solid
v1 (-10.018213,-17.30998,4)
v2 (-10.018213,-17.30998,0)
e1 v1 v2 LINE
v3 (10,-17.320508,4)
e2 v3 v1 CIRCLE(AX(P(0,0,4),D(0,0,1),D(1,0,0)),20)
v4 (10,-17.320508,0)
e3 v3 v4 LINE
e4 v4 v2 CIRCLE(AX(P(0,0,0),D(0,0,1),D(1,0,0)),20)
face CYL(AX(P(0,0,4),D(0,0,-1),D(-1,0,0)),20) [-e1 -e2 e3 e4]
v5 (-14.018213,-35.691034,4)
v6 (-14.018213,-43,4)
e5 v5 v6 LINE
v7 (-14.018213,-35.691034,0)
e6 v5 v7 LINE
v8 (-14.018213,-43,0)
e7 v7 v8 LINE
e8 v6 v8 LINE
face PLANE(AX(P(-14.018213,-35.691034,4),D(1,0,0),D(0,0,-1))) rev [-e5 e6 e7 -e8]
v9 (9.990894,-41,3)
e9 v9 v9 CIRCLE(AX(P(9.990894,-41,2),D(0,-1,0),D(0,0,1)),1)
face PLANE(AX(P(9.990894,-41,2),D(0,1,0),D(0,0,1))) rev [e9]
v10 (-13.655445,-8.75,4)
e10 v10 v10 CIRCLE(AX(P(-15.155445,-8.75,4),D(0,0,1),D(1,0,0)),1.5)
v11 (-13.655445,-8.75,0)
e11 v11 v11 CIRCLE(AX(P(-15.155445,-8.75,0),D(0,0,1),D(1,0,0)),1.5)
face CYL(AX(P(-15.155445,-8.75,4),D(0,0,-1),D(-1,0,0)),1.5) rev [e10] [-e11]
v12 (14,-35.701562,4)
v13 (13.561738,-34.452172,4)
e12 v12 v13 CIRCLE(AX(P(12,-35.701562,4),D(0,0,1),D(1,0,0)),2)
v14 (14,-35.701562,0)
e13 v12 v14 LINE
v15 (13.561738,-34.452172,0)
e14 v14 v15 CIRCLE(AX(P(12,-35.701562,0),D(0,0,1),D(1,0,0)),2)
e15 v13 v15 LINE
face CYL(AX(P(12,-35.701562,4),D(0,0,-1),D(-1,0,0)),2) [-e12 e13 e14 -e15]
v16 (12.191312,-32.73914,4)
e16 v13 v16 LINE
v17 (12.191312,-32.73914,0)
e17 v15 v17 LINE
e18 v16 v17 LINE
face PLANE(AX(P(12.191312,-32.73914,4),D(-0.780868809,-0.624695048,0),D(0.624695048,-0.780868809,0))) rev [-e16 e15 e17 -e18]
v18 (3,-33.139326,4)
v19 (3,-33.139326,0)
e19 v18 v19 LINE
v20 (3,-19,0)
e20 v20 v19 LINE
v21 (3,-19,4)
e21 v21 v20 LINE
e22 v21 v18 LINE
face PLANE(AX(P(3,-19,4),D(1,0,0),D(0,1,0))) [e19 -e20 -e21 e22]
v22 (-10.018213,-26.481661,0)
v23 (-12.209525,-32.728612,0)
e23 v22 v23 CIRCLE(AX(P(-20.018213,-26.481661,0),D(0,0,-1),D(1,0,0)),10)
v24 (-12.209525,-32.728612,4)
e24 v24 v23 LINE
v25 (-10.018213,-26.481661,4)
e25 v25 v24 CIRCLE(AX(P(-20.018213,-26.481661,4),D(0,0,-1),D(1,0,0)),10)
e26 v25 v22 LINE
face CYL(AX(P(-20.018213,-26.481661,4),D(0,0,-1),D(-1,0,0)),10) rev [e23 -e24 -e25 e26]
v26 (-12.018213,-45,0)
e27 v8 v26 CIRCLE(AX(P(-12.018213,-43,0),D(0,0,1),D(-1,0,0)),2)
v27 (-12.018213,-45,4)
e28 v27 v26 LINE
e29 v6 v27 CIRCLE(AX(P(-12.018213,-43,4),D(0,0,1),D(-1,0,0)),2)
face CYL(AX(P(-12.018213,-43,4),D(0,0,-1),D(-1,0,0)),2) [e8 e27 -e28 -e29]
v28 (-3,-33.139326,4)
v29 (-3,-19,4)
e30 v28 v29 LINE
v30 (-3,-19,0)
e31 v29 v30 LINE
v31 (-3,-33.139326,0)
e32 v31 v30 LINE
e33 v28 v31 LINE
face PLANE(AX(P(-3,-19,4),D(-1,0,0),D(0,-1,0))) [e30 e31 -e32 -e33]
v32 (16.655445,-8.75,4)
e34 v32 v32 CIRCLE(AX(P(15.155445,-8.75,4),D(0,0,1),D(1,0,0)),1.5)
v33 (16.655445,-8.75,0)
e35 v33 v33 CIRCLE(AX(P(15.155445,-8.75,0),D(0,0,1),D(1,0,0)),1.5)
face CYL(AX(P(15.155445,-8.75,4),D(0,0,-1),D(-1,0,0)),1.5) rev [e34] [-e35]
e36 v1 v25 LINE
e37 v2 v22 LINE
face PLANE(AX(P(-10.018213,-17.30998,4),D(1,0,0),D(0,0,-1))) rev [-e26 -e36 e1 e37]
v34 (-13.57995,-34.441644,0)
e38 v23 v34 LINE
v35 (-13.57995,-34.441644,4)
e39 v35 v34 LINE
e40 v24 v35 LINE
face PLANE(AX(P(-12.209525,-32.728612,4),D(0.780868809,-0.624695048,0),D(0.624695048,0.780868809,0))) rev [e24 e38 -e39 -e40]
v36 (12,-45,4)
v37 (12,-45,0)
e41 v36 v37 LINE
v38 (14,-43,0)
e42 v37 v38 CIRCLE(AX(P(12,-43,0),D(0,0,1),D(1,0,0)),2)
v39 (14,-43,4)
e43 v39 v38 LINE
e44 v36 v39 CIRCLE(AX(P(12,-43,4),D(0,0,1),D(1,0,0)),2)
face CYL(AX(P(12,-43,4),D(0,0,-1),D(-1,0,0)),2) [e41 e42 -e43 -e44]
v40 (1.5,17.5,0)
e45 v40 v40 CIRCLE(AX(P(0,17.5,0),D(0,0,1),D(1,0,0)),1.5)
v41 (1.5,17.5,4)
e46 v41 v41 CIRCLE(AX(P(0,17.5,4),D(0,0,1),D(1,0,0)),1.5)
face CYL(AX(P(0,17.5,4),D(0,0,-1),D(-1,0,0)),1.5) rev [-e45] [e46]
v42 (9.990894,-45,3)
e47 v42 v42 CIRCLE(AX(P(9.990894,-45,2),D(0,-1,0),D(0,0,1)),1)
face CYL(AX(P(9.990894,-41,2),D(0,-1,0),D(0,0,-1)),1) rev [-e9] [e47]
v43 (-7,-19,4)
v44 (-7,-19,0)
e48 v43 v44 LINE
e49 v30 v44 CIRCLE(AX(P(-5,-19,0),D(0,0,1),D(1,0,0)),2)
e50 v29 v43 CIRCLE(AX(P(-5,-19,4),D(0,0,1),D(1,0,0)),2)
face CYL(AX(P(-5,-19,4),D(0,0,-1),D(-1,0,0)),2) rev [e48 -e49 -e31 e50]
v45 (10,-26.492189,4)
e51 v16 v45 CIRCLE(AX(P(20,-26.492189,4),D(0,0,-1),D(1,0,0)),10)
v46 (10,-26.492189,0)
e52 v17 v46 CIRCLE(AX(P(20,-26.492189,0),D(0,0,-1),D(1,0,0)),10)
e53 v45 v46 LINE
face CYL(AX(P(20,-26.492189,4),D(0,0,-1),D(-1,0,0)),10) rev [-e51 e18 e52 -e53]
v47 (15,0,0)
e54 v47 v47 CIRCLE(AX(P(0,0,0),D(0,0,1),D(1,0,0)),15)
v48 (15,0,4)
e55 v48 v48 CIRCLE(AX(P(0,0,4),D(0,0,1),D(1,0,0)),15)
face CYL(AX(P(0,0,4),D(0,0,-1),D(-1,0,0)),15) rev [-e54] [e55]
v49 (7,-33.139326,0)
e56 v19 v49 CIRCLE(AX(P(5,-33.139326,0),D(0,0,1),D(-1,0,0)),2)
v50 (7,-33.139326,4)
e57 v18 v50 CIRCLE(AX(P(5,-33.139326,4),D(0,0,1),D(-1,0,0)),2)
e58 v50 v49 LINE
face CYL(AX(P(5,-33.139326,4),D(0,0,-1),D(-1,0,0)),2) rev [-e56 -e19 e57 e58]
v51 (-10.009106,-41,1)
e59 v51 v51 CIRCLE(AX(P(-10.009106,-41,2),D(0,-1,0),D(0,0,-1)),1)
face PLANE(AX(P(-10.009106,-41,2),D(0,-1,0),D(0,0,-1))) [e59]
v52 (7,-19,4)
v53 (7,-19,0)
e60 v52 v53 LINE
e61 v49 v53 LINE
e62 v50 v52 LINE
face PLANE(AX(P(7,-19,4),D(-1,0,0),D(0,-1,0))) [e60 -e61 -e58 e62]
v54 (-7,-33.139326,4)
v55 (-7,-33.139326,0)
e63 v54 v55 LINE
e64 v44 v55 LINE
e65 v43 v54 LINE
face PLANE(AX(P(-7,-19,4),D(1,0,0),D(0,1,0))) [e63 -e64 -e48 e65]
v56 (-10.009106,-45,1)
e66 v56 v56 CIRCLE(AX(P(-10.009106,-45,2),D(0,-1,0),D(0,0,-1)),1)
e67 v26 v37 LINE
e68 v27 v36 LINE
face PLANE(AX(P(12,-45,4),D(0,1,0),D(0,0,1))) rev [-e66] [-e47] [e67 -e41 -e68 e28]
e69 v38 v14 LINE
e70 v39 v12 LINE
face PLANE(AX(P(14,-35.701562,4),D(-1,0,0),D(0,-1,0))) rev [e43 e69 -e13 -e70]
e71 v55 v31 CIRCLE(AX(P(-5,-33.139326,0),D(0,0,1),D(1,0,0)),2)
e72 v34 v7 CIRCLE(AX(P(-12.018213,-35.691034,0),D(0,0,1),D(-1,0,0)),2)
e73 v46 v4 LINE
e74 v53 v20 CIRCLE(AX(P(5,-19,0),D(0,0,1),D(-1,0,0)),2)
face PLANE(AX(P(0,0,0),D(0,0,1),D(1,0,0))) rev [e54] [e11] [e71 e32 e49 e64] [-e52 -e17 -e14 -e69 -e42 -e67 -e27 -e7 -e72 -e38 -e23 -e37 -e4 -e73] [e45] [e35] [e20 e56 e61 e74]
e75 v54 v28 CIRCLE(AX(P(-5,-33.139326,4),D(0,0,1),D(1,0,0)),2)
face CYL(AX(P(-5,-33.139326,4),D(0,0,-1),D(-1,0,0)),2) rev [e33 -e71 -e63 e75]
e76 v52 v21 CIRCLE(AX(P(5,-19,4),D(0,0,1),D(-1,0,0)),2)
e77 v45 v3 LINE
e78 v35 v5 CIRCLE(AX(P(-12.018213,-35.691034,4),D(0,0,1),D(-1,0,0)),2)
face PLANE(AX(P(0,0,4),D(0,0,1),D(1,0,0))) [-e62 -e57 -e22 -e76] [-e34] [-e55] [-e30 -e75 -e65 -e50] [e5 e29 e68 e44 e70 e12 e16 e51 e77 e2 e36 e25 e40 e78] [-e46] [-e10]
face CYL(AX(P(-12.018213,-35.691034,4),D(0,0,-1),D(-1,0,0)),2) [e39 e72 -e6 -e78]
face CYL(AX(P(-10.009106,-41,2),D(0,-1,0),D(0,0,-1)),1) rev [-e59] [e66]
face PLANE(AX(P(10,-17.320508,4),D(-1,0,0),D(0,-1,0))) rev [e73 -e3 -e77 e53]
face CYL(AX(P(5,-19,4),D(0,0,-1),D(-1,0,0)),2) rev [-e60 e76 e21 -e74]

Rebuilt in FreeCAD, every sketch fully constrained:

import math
import FreeCAD as App
import Part
import Sketcher
Q = App.Units.Quantity

doc = App.newDocument("Part")
body = doc.addObject("PartDesign::Body", "Body")

# Sketch on XY plane
sketch1 = body.newObject("Sketcher::SketchObject", "Sketch")
sketch1.AttachmentSupport = (doc.getObject("XY_Plane"), [""])
sketch1.MapMode = "FlatFace"
sketch1.addGeometry(Part.LineSegment(App.Vector(13.6, -34.5, 0), App.Vector(12.2, -32.7, 0)), False)
sketch1.addGeometry(Part.ArcOfCircle(Part.Circle(App.Vector(20, -26.5, 0), App.Vector(0, 0, 1), 10), math.radians(180), math.radians(219)), False)
sketch1.addGeometry(Part.LineSegment(App.Vector(10, -26.5, 0), App.Vector(10, -17.3, 0)), False)
sketch1.addGeometry(Part.ArcOfCircle(Part.Circle(App.Vector(0, 0, 0), App.Vector(0, 0, 1), 20), math.radians(-60), math.radians(240)), False)
sketch1.addGeometry(Part.LineSegment(App.Vector(-10, -17.3, 0), App.Vector(-10, -26.5, 0)), False)
sketch1.addGeometry(Part.ArcOfCircle(Part.Circle(App.Vector(-20, -26.5, 0), App.Vector(0, 0, 1), 10), math.radians(-39), math.radians(0)), False)
sketch1.addGeometry(Part.LineSegment(App.Vector(-12.2, -32.7, 0), App.Vector(-13.6, -34.4, 0)), False)
sketch1.addGeometry(Part.ArcOfCircle(Part.Circle(App.Vector(-12, -35.7, 0), App.Vector(0, 0, 1), 2), math.radians(141), math.radians(180)), False)
sketch1.addGeometry(Part.LineSegment(App.Vector(-14, -35.7, 0), App.Vector(-14, -43, 0)), False)
sketch1.addGeometry(Part.ArcOfCircle(Part.Circle(App.Vector(-12, -43, 0), App.Vector(0, 0, 1), 2), math.radians(-180), math.radians(-90)), False)
sketch1.addGeometry(Part.LineSegment(App.Vector(-12, -45, 0), App.Vector(12, -45, 0)), False)
sketch1.addGeometry(Part.ArcOfCircle(Part.Circle(App.Vector(12, -43, 0), App.Vector(0, 0, 1), 2), math.radians(-90), math.radians(0)), False)
sketch1.addGeometry(Part.LineSegment(App.Vector(14, -43, 0), App.Vector(14, -35.7, 0)), False)
sketch1.addGeometry(Part.ArcOfCircle(Part.Circle(App.Vector(12, -35.7, 0), App.Vector(0, 0, 1), 2), math.radians(0), math.radians(39)), False)
sketch1.addGeometry(Part.ArcOfCircle(Part.Circle(App.Vector(5, -19, 0), App.Vector(0, 0, 1), 2), math.radians(0), math.radians(180)), False)
sketch1.addGeometry(Part.LineSegment(App.Vector(7, -19, 0), App.Vector(7, -33.1, 0)), False)
sketch1.addGeometry(Part.ArcOfCircle(Part.Circle(App.Vector(5, -33.1, 0), App.Vector(0, 0, 1), 2), math.radians(180), math.radians(360)), False)
sketch1.addGeometry(Part.LineSegment(App.Vector(3, -33.1, 0), App.Vector(3, -19, 0)), False)
sketch1.addGeometry(Part.Circle(App.Vector(15.2, -8.8, 0), App.Vector(0, 0, 1), 1.5), False)
sketch1.addGeometry(Part.LineSegment(App.Vector(-3, -19, 0), App.Vector(-3, -33.1, 0)), False)
sketch1.addGeometry(Part.ArcOfCircle(Part.Circle(App.Vector(-5, -33.1, 0), App.Vector(0, 0, 1), 2), math.radians(180), math.radians(360)), False)
sketch1.addGeometry(Part.LineSegment(App.Vector(-7, -33.1, 0), App.Vector(-7, -19, 0)), False)
sketch1.addGeometry(Part.ArcOfCircle(Part.Circle(App.Vector(-5, -19, 0), App.Vector(0, 0, 1), 2), math.radians(0), math.radians(180)), False)
sketch1.addGeometry(Part.Circle(App.Vector(-15.2, -8.8, 0), App.Vector(0, 0, 1), 1.5), False)
sketch1.addGeometry(Part.Circle(App.Vector(0, 0, 0), App.Vector(0, 0, 1), 15), False)
sketch1.addGeometry(Part.Circle(App.Vector(0, 17.5, 0), App.Vector(0, 0, 1), 1.5), False)
sketch1.addConstraint(Sketcher.Constraint("Tangent", 0, 2, 1, 2))
sketch1.addConstraint(Sketcher.Constraint("Tangent", 1, 1, 2, 1))
sketch1.addConstraint(Sketcher.Constraint("Coincident", 2, 2, 3, 1))
sketch1.addConstraint(Sketcher.Constraint("Coincident", 3, 2, 4, 1))
sketch1.addConstraint(Sketcher.Constraint("Tangent", 4, 2, 5, 2))
sketch1.addConstraint(Sketcher.Constraint("Tangent", 5, 1, 6, 1))
sketch1.addConstraint(Sketcher.Constraint("Tangent", 6, 2, 7, 1))
sketch1.addConstraint(Sketcher.Constraint("Tangent", 7, 2, 8, 1))
sketch1.addConstraint(Sketcher.Constraint("Tangent", 8, 2, 9, 1))
sketch1.addConstraint(Sketcher.Constraint("Tangent", 9, 2, 10, 1))
sketch1.addConstraint(Sketcher.Constraint("Tangent", 10, 2, 11, 1))
sketch1.addConstraint(Sketcher.Constraint("Tangent", 11, 2, 12, 1))
sketch1.addConstraint(Sketcher.Constraint("Tangent", 12, 2, 13, 1))
sketch1.addConstraint(Sketcher.Constraint("Tangent", 13, 2, 0, 1))
sketch1.addConstraint(Sketcher.Constraint("Tangent", 14, 1, 15, 1))
sketch1.addConstraint(Sketcher.Constraint("Tangent", 15, 2, 16, 2))
sketch1.addConstraint(Sketcher.Constraint("Tangent", 16, 1, 17, 1))
sketch1.addConstraint(Sketcher.Constraint("Tangent", 17, 2, 14, 2))
sketch1.addConstraint(Sketcher.Constraint("Tangent", 19, 2, 20, 2))
sketch1.addConstraint(Sketcher.Constraint("Tangent", 20, 1, 21, 1))
sketch1.addConstraint(Sketcher.Constraint("Tangent", 21, 2, 22, 2))
sketch1.addConstraint(Sketcher.Constraint("Tangent", 22, 1, 19, 1))
sketch1.addConstraint(Sketcher.Constraint("Vertical", 2))
sketch1.addConstraint(Sketcher.Constraint("Vertical", 4))
sketch1.addConstraint(Sketcher.Constraint("Vertical", 8))
sketch1.addConstraint(Sketcher.Constraint("Horizontal", 10))
sketch1.addConstraint(Sketcher.Constraint("Vertical", 12))
sketch1.addConstraint(Sketcher.Constraint("Vertical", 15))
sketch1.addConstraint(Sketcher.Constraint("Vertical", 17))
sketch1.addConstraint(Sketcher.Constraint("Vertical", 19))
sketch1.addConstraint(Sketcher.Constraint("Vertical", 21))
sketch1.addConstraint(Sketcher.Constraint("Coincident", 3, 3, -1, 1))
sketch1.addConstraint(Sketcher.Constraint("Coincident", 24, 3, -1, 1))
sketch1.addConstraint(Sketcher.Constraint("Equal", 1, 5))
sketch1.addConstraint(Sketcher.Constraint("Equal", 7, 9))
sketch1.addConstraint(Sketcher.Constraint("Equal", 9, 11))
sketch1.addConstraint(Sketcher.Constraint("Equal", 11, 13))
sketch1.addConstraint(Sketcher.Constraint("Equal", 13, 14))
sketch1.addConstraint(Sketcher.Constraint("Equal", 16, 20))
sketch1.addConstraint(Sketcher.Constraint("Equal", 18, 23))
sketch1.addConstraint(Sketcher.Constraint("Equal", 23, 25))
sketch1.addConstraint(Sketcher.Constraint("Symmetric", 16, 3, 20, 3, -2))
sketch1.addConstraint(Sketcher.Constraint("Symmetric", 18, 3, 23, 3, -2))
sketch1.addConstraint(Sketcher.Constraint("PointOnObject", 25, 3, -2))
sketch1.addConstraint(Sketcher.Constraint("Horizontal", 14, 3, 22, 3))
sketch1.addConstraint(Sketcher.Constraint("Equal", 2, 4))
sketch1.addConstraint(Sketcher.Constraint("Equal", 0, 6))
sketch1.addConstraint(Sketcher.Constraint("Diameter", 18, Q("3 mm")))
sketch1.addConstraint(Sketcher.Constraint("Diameter", 24, Q("30 mm")))
sketch1.addConstraint(Sketcher.Constraint("Radius", 1, Q("10 mm")))
sketch1.addConstraint(Sketcher.Constraint("Radius", 3, Q("20 mm")))
sketch1.addConstraint(Sketcher.Constraint("Radius", 7, Q("2 mm")))
sketch1.addConstraint(Sketcher.Constraint("DistanceX", -1, 1, 1, 3, Q("20 mm")))
sketch1.addConstraint(Sketcher.Constraint("DistanceY", 9, 3, -1, 1, Q("43 mm")))
sketch1.addConstraint(Sketcher.Constraint("DistanceX", -1, 1, 11, 3, Q("12 mm")))
sketch1.addConstraint(Sketcher.Constraint("DistanceX", -1, 1, 14, 3, Q("5 mm")))
sketch1.addConstraint(Sketcher.Constraint("DistanceY", 14, 3, -1, 1, Q("19 mm")))
sketch1.addConstraint(Sketcher.Constraint("DistanceX", 5, 3, 7, 3, Q("8 mm")))
sketch1.addConstraint(Sketcher.Constraint("DistanceY", -1, 1, 25, 3, Q("17.5 mm")))
sketch1.addConstraint(Sketcher.Constraint("DistanceY", 18, 3, -1, 1, Q("8.75 mm")))
sketch1.addConstraint(Sketcher.Constraint("DistanceY", 2, 1, 2, 2, Q("9.171681 mm")))
sketch1.addConstraint(Sketcher.Constraint("DistanceY", 13, 3, 5, 3, Q("9.219901 mm")))
sketch1.addConstraint(Sketcher.Constraint("Distance", 0, Q("2.193752 mm")))
sketch1.addConstraint(Sketcher.Constraint("DistanceY", 15, 2, 15, 1, Q("14.139326 mm")))
sketch1.addConstraint(Sketcher.Constraint("DistanceX", 5, 3, 23, 3, Q("4.862768 mm")))
pad1 = body.newObject("PartDesign::Pad", "Pad")
pad1.Profile = sketch1
pad1.Length = 4

# Sketch on XZ plane
sketch2 = body.newObject("Sketcher::SketchObject", "Sketch001")
sketch2.AttachmentSupport = (doc.getObject("XZ_Plane"), [""])
sketch2.MapMode = "FlatFace"
sketch2.AttachmentOffset = App.Placement(App.Vector(0, 0, 45), App.Rotation())
sketch2.addGeometry(Part.Circle(App.Vector(-10, 2, 0), App.Vector(0, 0, 1), 1), False)
sketch2.addGeometry(Part.Circle(App.Vector(10, 2, 0), App.Vector(0, 0, 1), 1), False)
sketch2.addConstraint(Sketcher.Constraint("Equal", 0, 1))
sketch2.addConstraint(Sketcher.Constraint("Horizontal", 0, 3, 1, 3))
sketch2.addConstraint(Sketcher.Constraint("Diameter", 0, Q("2 mm")))
sketch2.addConstraint(Sketcher.Constraint("DistanceY", -1, 1, 0, 3, Q("2 mm")))
sketch2.addConstraint(Sketcher.Constraint("DistanceX", 0, 3, 1, 3, Q("20 mm")))
sketch2.addConstraint(Sketcher.Constraint("DistanceX", 0, 3, -1, 1, Q("10.009106 mm")))
pocket1 = body.newObject("PartDesign::Pocket", "Pocket")
pocket1.Profile = sketch2
pocket1.Length = 4

doc.recompute()
